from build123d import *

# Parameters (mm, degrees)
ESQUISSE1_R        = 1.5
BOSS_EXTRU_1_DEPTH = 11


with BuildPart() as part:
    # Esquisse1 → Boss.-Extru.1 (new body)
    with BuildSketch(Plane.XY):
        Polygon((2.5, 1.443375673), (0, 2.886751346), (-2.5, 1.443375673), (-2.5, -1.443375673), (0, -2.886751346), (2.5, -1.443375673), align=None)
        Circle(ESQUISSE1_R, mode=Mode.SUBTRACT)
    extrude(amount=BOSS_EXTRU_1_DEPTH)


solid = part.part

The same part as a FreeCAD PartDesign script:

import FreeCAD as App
import Part
import Sketcher
from FreeCAD import Vector
Q = App.Units.Quantity

doc = App.newDocument("Part")
params = doc.addObject("Spreadsheet::Sheet", "Params")
for row, (alias, value) in enumerate([
    ("sketch1_diameter", "3 mm"),
    ("pad1_length", "11 mm"),
], start=1):
    params.set(f"A{row}", alias)
    params.set(f"B{row}", "=" + value)
    params.setAlias(f"B{row}", alias)

body = doc.addObject("PartDesign::Body", "Body")

sketch1 = body.newObject("Sketcher::SketchObject", "Sketch")
sketch1.AttachmentSupport = (doc.getObject("XY_Plane"), [""])
sketch1.MapMode = "FlatFace"
sketch1.addGeometry(Part.LineSegment(Vector(2.5, 1.4, 0), Vector(0, 2.9, 0)), False)
sketch1.addGeometry(Part.LineSegment(Vector(0, 2.9, 0), Vector(-2.5, 1.4, 0)), False)
sketch1.addGeometry(Part.LineSegment(Vector(-2.5, 1.4, 0), Vector(-2.5, -1.4, 0)), False)
sketch1.addGeometry(Part.LineSegment(Vector(-2.5, -1.4, 0), Vector(0, -2.9, 0)), False)
sketch1.addGeometry(Part.LineSegment(Vector(0, -2.9, 0), Vector(2.5, -1.4, 0)), False)
sketch1.addGeometry(Part.LineSegment(Vector(2.5, -1.4, 0), Vector(2.5, 1.4, 0)), False)
sketch1.addGeometry(Part.Circle(Vector(0, 0, 0), Vector(0, 0, 1), 1.5), False)
sketch1.addConstraint(Sketcher.Constraint("Coincident", 0, 2, 1, 1))
sketch1.addConstraint(Sketcher.Constraint("Coincident", 1, 2, 2, 1))
sketch1.addConstraint(Sketcher.Constraint("Coincident", 2, 2, 3, 1))
sketch1.addConstraint(Sketcher.Constraint("Coincident", 3, 2, 4, 1))
sketch1.addConstraint(Sketcher.Constraint("Coincident", 4, 2, 5, 1))
sketch1.addConstraint(Sketcher.Constraint("Coincident", 5, 2, 0, 1))
sketch1.addConstraint(Sketcher.Constraint("Vertical", 2))
sketch1.addConstraint(Sketcher.Constraint("Vertical", 5))
sketch1.addConstraint(Sketcher.Constraint("Coincident", 6, 3, -1, 1))
sketch1.addConstraint(Sketcher.Constraint("Symmetric", 0, 2, 3, 2, -1, 1))
sketch1.addConstraint(Sketcher.Constraint("Symmetric", 1, 2, 4, 2, -1, 1))
sketch1.addConstraint(Sketcher.Constraint("PointOnObject", 0, 2, -2))
sketch1.addConstraint(Sketcher.Constraint("Parallel", 0, 3))
sketch1.addConstraint(Sketcher.Constraint("Horizontal", 2, 2, 4, 2))
sketch1.addConstraint(Sketcher.Constraint("Diameter", 6, Q("3 mm")))
sketch1.addConstraint(Sketcher.Constraint("Angle", 0, Q("150 deg")))
sketch1.addConstraint(Sketcher.Constraint("DistanceX", 2, 2, 4, 2, Q("5 mm")))
sketch1.addConstraint(Sketcher.Constraint("DistanceY", 2, 2, 2, 1, Q("2.886751 mm")))
sketch1.setExpression("Constraints[14]", "Params.sketch1_diameter")
pad1 = body.newObject("PartDesign::Pad", "Pad")
pad1.Profile = sketch1
pad1.setExpression("Length", "Params.pad1_length")

doc.recompute()
